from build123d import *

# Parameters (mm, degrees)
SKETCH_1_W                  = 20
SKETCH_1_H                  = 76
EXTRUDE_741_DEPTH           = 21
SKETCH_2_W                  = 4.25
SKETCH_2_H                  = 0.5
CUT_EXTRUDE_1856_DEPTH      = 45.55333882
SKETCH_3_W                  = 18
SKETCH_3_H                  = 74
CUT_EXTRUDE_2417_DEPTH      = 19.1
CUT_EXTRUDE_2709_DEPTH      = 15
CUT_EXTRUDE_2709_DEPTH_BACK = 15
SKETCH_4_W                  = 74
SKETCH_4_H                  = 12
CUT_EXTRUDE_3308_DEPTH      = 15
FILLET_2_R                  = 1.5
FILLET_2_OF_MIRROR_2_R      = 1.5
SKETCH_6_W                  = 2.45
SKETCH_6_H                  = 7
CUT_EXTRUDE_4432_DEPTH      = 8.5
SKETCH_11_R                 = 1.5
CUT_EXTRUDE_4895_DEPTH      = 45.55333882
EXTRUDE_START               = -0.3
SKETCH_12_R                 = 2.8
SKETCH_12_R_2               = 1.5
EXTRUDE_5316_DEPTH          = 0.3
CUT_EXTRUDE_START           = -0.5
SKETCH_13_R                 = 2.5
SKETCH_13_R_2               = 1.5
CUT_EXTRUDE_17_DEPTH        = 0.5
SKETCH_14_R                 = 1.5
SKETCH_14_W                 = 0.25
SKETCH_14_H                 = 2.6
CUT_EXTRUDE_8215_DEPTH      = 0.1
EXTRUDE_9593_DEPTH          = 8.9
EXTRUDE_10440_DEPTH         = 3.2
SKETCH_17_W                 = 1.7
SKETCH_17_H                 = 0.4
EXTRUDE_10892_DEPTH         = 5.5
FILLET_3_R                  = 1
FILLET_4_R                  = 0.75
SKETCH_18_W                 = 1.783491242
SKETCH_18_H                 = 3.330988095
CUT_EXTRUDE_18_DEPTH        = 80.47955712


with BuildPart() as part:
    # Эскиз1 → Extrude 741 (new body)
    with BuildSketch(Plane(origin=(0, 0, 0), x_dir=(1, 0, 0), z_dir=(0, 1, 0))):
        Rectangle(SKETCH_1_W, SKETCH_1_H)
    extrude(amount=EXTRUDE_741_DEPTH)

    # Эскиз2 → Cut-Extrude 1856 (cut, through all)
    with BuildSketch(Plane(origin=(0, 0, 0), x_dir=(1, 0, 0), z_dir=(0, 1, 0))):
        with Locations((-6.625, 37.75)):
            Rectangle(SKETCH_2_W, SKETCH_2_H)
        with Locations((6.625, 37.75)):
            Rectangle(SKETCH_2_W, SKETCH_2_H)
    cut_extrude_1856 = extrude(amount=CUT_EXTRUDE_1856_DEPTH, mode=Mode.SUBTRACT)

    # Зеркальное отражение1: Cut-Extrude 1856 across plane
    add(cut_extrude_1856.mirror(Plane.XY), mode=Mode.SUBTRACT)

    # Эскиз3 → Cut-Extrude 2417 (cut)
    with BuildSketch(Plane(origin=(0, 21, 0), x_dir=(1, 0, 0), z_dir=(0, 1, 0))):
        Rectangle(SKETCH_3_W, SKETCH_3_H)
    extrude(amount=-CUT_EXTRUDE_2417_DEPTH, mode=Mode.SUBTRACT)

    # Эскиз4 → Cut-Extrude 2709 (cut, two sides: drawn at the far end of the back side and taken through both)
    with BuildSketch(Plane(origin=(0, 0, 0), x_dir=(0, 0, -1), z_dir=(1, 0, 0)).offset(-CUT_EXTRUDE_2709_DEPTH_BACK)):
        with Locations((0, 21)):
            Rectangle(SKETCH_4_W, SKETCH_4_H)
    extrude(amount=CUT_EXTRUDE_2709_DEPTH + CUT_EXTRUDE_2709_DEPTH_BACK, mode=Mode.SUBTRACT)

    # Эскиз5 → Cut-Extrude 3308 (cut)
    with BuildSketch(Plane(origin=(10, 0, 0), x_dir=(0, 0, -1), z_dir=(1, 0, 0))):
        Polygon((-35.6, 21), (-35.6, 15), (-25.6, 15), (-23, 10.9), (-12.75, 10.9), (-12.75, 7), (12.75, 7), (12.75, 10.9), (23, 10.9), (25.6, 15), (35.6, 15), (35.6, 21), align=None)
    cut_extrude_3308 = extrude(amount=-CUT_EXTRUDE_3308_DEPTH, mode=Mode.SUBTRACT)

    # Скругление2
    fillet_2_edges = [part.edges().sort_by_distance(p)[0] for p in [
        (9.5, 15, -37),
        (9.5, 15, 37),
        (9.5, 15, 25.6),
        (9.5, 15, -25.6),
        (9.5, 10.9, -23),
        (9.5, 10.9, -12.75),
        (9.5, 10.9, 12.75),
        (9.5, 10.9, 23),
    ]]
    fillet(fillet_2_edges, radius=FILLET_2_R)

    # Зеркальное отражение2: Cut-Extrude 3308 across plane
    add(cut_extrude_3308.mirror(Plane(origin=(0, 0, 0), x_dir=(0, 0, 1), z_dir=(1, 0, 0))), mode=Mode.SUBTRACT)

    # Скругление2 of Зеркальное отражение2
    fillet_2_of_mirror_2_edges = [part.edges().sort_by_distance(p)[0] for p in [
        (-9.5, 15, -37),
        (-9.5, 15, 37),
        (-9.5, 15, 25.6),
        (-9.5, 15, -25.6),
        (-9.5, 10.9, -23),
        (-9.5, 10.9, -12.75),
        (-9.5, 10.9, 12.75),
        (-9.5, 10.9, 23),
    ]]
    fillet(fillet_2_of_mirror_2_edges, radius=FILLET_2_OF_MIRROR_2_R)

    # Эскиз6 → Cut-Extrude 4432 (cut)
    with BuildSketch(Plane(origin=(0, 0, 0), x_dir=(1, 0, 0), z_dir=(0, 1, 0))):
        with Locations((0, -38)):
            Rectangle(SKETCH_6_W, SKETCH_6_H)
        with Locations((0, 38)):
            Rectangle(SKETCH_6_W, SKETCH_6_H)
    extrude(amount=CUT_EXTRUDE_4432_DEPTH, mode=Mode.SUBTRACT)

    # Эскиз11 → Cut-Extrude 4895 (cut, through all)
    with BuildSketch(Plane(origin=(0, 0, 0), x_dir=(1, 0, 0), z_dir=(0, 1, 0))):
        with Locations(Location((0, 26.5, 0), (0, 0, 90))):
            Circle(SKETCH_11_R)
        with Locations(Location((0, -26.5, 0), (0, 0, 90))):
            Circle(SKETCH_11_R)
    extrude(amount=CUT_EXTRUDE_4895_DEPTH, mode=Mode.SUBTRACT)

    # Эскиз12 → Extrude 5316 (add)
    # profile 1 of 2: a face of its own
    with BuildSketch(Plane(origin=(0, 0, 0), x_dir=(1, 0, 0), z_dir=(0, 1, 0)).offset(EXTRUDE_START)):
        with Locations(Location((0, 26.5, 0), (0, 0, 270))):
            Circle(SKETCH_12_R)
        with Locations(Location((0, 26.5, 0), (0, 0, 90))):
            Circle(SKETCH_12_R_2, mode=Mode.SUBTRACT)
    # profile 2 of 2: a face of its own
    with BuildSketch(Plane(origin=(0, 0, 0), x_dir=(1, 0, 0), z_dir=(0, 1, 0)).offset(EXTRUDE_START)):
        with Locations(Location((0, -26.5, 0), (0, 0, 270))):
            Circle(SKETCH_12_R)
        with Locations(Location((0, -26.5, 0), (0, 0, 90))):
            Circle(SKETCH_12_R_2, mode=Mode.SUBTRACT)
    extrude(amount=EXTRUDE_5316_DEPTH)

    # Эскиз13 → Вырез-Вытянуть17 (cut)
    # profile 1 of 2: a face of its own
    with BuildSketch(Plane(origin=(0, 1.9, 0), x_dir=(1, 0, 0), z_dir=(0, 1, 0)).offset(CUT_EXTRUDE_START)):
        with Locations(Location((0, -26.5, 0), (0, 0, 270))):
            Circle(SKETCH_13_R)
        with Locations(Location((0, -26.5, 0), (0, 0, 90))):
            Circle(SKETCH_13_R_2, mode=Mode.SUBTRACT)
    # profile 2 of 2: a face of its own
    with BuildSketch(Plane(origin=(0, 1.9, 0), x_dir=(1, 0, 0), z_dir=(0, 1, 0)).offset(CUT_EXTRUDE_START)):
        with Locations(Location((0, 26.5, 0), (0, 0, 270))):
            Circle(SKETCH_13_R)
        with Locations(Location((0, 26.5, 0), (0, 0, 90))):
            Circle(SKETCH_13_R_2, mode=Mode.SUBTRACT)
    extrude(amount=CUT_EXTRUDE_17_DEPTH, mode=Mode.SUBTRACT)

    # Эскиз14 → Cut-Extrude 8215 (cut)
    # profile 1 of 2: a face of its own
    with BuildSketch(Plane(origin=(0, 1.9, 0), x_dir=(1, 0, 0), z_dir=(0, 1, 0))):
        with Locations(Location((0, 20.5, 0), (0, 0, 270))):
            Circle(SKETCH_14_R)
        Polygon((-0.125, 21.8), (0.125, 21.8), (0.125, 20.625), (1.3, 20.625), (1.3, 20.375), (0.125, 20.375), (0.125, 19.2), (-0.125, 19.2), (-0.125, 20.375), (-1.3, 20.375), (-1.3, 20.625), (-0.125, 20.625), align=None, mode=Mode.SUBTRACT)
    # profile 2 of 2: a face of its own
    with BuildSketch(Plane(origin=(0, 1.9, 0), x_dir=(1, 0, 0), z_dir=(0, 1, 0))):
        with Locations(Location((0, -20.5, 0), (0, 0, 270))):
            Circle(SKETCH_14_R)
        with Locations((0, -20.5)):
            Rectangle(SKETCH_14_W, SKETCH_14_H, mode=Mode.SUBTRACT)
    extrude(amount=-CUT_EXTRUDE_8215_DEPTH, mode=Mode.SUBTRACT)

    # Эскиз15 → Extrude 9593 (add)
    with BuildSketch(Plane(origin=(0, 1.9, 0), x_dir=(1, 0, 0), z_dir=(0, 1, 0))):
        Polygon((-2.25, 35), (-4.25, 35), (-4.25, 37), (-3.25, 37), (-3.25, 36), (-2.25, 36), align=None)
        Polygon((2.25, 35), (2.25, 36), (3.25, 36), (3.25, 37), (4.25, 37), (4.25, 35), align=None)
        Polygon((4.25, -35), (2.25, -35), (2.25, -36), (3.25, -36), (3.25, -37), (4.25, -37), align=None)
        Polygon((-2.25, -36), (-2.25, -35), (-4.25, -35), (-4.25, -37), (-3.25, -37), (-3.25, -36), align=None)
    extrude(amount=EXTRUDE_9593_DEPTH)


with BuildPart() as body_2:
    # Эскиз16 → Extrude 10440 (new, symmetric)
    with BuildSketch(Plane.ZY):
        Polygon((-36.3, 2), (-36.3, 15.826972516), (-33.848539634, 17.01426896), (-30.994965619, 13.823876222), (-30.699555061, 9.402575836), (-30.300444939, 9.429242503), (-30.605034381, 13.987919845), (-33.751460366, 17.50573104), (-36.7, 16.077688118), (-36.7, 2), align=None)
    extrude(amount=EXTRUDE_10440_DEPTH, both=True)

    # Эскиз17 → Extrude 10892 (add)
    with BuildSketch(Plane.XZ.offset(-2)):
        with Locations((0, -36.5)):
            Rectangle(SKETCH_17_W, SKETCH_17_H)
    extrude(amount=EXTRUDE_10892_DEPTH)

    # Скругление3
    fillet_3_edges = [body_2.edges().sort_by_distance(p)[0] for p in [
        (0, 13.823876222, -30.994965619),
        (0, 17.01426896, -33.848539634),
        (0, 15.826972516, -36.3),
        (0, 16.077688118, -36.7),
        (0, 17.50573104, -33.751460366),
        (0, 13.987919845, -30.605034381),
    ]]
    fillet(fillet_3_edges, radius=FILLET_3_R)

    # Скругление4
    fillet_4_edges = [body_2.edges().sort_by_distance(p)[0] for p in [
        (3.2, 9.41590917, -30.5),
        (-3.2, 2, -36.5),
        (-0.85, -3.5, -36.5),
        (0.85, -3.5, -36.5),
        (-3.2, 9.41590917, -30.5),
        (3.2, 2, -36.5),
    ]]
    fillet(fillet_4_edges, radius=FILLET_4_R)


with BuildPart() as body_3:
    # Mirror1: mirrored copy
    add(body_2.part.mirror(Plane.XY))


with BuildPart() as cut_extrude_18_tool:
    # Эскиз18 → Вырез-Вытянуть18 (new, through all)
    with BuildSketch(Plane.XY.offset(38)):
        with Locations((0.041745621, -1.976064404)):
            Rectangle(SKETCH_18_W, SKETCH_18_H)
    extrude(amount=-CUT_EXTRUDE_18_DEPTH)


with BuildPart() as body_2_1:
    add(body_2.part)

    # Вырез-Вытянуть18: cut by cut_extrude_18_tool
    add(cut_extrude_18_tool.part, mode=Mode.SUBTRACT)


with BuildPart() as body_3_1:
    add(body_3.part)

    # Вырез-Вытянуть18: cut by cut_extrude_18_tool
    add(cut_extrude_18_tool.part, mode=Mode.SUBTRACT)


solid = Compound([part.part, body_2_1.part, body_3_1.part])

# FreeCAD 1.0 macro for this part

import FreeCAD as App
import Part
import Sketcher

V = App.Vector
Q = App.Units.Quantity


def edges_at(feature, points):
    """Names of the edges that pass closest to the given points."""
    edges = feature.Shape.Edges
    near = lambda p: min(range(len(edges)), key=lambda i: edges[i].distToShape(Part.Vertex(*p))[0])
    return sorted({f"Edge{near(p) + 1}" for p in points})

doc = App.newDocument("Part")
params = doc.addObject("Spreadsheet::Sheet", "Params")
for row, (alias, value) in enumerate([
    ("sketch1_width", "20 mm"),
    ("sketch1_height", "76 mm"),
    ("pad1_length", "21 mm"),
    ("sketch2_height", "0.5 mm"),
    ("sketch2_width", "4.25 mm"),
    ("sketch3_width", "18 mm"),
    ("sketch3_height", "74 mm"),
    ("pocket2_length", "19.1 mm"),
    ("sketch4_width", "12 mm"),
    ("sketch4_height", "74 mm"),
    ("sketch5_width", "6 mm"),
    ("sketch5_height", "10 mm"),
    ("sketch5_width2", "3.9 mm"),
    ("sketch5_height2", "25.5 mm"),
    ("sketch5_height3", "71.2 mm"),
    ("pocket4_length", "15 mm"),
    ("fillet_radius", "1.5 mm"),
    ("fillet2_radius", "1.5 mm"),
    ("sketch6_height", "7 mm"),
    ("sketch6_width", "2.45 mm"),
    ("pocket5_length", "8.5 mm"),
    ("sketch7_diameter", "3 mm"),
    ("sketch8_diameter", "3 mm"),
    ("sketch8_diameter2", "5.6 mm"),
    ("pad2_length", "0.3 mm"),
    ("sketch9_diameter", "5 mm"),
    ("sketch9_diameter2", "3 mm"),
    ("pocket7_length", "0.5 mm"),
    ("sketch10_diameter", "3 mm"),
    ("sketch10_height", "2.6 mm"),
    ("sketch10_width", "0.25 mm"),
    ("pocket8_length", "0.1 mm"),
    ("sketch11_width", "2 mm"),
    ("pad3_length", "8.9 mm"),
    ("sketch12_height", "0.4 mm"),
    ("sketch12_length", "0.4 mm"),
    ("pad4_length", "6.4 mm"),
    ("sketch13_width", "1.7 mm"),
    ("sketch13_height", "0.4 mm"),
    ("pad5_length", "5.5 mm"),
    ("fillet3_radius", "1 mm"),
    ("fillet4_radius", "0.75 mm"),
    ("pad6_length", "80.479557 mm"),
], start=1):
    params.set(f"A{row}", alias)
    params.set(f"B{row}", "=" + value)
    params.setAlias(f"B{row}", alias)

body = doc.addObject("PartDesign::Body", "Body")

# Sketch on XZ plane
sketch1 = body.newObject("Sketcher::SketchObject", "Sketch")
sketch1.AttachmentSupport = (doc.getObject("XZ_Plane"), [""])
sketch1.MapMode = "FlatFace"
sketch1.addGeometry([
    Part.LineSegment(V(-10, -38, 0), V(-10, 38, 0)),
    Part.LineSegment(V(-10, 38, 0), V(10, 38, 0)),
    Part.LineSegment(V(10, 38, 0), V(10, -38, 0)),
    Part.LineSegment(V(10, -38, 0), V(-10, -38, 0)),
], False)
sketch1.addConstraint([
    Sketcher.Constraint("Coincident", 0, 2, 1, 1),
    Sketcher.Constraint("Coincident", 1, 2, 2, 1),
    Sketcher.Constraint("Coincident", 2, 2, 3, 1),
    Sketcher.Constraint("Coincident", 3, 2, 0, 1),
    Sketcher.Constraint("Vertical", 0),
    Sketcher.Constraint("Horizontal", 1),
    Sketcher.Constraint("Vertical", 2),
    Sketcher.Constraint("Horizontal", 3),
    Sketcher.Constraint("Symmetric", 0, 2, 2, 2, -1, 1),
    Sketcher.Constraint("DistanceX", 1, 1, 1, 2, Q("20 mm")),
    Sketcher.Constraint("DistanceY", 0, 1, 0, 2, Q("76 mm")),
])
sketch1.setExpression("Constraints[9]", "Params.sketch1_width")
sketch1.setExpression("Constraints[10]", "Params.sketch1_height")
pad1 = body.newObject("PartDesign::Pad", "Pad")
pad1.Profile = sketch1
pad1.setExpression("Length", "Params.pad1_length")
pad1.Reversed = True

# Sketch on XZ plane
sketch2 = body.newObject("Sketcher::SketchObject", "Sketch001")
sketch2.AttachmentSupport = (doc.getObject("XZ_Plane"), [""])
sketch2.MapMode = "FlatFace"
sketch2.addGeometry([
    Part.LineSegment(V(-8.75, -38, 0), V(-8.75, -37.5, 0)),  # 0
    Part.LineSegment(V(-8.75, -37.5, 0), V(-4.5, -37.5, 0)),  # 1
    Part.LineSegment(V(-4.5, -37.5, 0), V(-4.5, -38, 0)),  # 2
    Part.LineSegment(V(-4.5, -38, 0), V(-8.75, -38, 0)),  # 3
    Part.LineSegment(V(4.5, -38, 0), V(4.5, -37.5, 0)),  # 4
    Part.LineSegment(V(4.5, -37.5, 0), V(8.75, -37.5, 0)),  # 5
    Part.LineSegment(V(8.75, -37.5, 0), V(8.75, -38, 0)),  # 6
    Part.LineSegment(V(8.75, -38, 0), V(4.5, -38, 0)),  # 7
], False)
sketch2.addConstraint([
    Sketcher.Constraint("Coincident", 0, 2, 1, 1),
    Sketcher.Constraint("Coincident", 1, 2, 2, 1),
    Sketcher.Constraint("Coincident", 2, 2, 3, 1),
    Sketcher.Constraint("Coincident", 3, 2, 0, 1),
    Sketcher.Constraint("Coincident", 4, 2, 5, 1),
    Sketcher.Constraint("Coincident", 5, 2, 6, 1),
    Sketcher.Constraint("Coincident", 6, 2, 7, 1),
    Sketcher.Constraint("Coincident", 7, 2, 4, 1),
    Sketcher.Constraint("Vertical", 0),
    Sketcher.Constraint("Horizontal", 1),
    Sketcher.Constraint("Vertical", 2),
    Sketcher.Constraint("Horizontal", 3),
    Sketcher.Constraint("Vertical", 4),
    Sketcher.Constraint("Horizontal", 5),
    Sketcher.Constraint("Vertical", 6),
    Sketcher.Constraint("Horizontal", 7),
    Sketcher.Constraint("Symmetric", 1, 2, 4, 2, -2),
    Sketcher.Constraint("Symmetric", 3, 2, 6, 2, -2),
    Sketcher.Constraint("DistanceY", 0, 1, 0, 2, Q("0.5 mm")),
    Sketcher.Constraint("DistanceY", 2, 2, -1, 1, Q("38 mm")),
    Sketcher.Constraint("DistanceX", 1, 2, 4, 2, Q("9 mm")),
    Sketcher.Constraint("DistanceX", 1, 1, 1, 2, Q("4.25 mm")),
])
sketch2.setExpression("Constraints[18]", "Params.sketch2_height")
sketch2.setExpression("Constraints[21]", "Params.sketch2_width")
pocket1 = body.newObject("PartDesign::Pocket", "Pocket")
pocket1.Profile = sketch2
pocket1.Type = "ThroughAll"
doc.recompute()

mirrored = body.newObject("PartDesign::Mirrored", "Mirrored")
mirrored.Originals = [pocket1]
mirrored.MirrorPlane = (doc.getObject("XY_Plane"), [""])
body.Tip = mirrored

# Sketch on XZ plane
sketch3 = body.newObject("Sketcher::SketchObject", "Sketch002")
sketch3.AttachmentSupport = (doc.getObject("XZ_Plane"), [""])
sketch3.MapMode = "FlatFace"
sketch3.AttachmentOffset = App.Placement(V(0, 0, -21), App.Rotation())
sketch3.addGeometry([
    Part.LineSegment(V(-9, -37, 0), V(-9, 37, 0)),
    Part.LineSegment(V(-9, 37, 0), V(9, 37, 0)),
    Part.LineSegment(V(9, 37, 0), V(9, -37, 0)),
    Part.LineSegment(V(9, -37, 0), V(-9, -37, 0)),
], False)
sketch3.addConstraint([
    Sketcher.Constraint("Coincident", 0, 2, 1, 1),
    Sketcher.Constraint("Coincident", 1, 2, 2, 1),
    Sketcher.Constraint("Coincident", 2, 2, 3, 1),
    Sketcher.Constraint("Coincident", 3, 2, 0, 1),
    Sketcher.Constraint("Vertical", 0),
    Sketcher.Constraint("Horizontal", 1),
    Sketcher.Constraint("Vertical", 2),
    Sketcher.Constraint("Horizontal", 3),
    Sketcher.Constraint("Symmetric", 0, 2, 2, 2, -1, 1),
    Sketcher.Constraint("DistanceX", 1, 1, 1, 2, Q("18 mm")),
    Sketcher.Constraint("DistanceY", 0, 1, 0, 2, Q("74 mm")),
])
sketch3.setExpression("Constraints[9]", "Params.sketch3_width")
sketch3.setExpression("Constraints[10]", "Params.sketch3_height")
pocket2 = body.newObject("PartDesign::Pocket", "Pocket001")
pocket2.Profile = sketch3
pocket2.setExpression("Length", "Params.pocket2_length")
pocket2.Reversed = True

# Sketch on YZ plane
sketch4 = body.newObject("Sketcher::SketchObject", "Sketch003")
sketch4.AttachmentSupport = (doc.getObject("YZ_Plane"), [""])
sketch4.MapMode = "FlatFace"
sketch4.addGeometry([
    Part.LineSegment(V(27, 37, 0), V(15, 37, 0)),
    Part.LineSegment(V(15, 37, 0), V(15, -37, 0)),
    Part.LineSegment(V(15, -37, 0), V(27, -37, 0)),
    Part.LineSegment(V(27, -37, 0), V(27, 37, 0)),
], False)
sketch4.addConstraint([
    Sketcher.Constraint("Coincident", 0, 2, 1, 1),
    Sketcher.Constraint("Coincident", 1, 2, 2, 1),
    Sketcher.Constraint("Coincident", 2, 2, 3, 1),
    Sketcher.Constraint("Coincident", 3, 2, 0, 1),
    Sketcher.Constraint("Horizontal", 0),
    Sketcher.Constraint("Vertical", 1),
    Sketcher.Constraint("Horizontal", 2),
    Sketcher.Constraint("Vertical", 3),
    Sketcher.Constraint("DistanceX", 0, 2, 0, 1, Q("12 mm")),
    Sketcher.Constraint("DistanceY", 1, 2, 1, 1, Q("74 mm")),
    Sketcher.Constraint("DistanceX", -1, 1, 0, 2, Q("15 mm")),
    Sketcher.Constraint("DistanceY", -1, 1, 0, 2, Q("37 mm")),
])
sketch4.setExpression("Constraints[8]", "Params.sketch4_width")
sketch4.setExpression("Constraints[9]", "Params.sketch4_height")
pocket3 = body.newObject("PartDesign::Pocket", "Pocket002")
pocket3.Profile = sketch4
pocket3.Type = "ThroughAll"
pocket3.Midplane = True

# Sketch on YZ plane
sketch5 = body.newObject("Sketcher::SketchObject", "Sketch004")
sketch5.AttachmentSupport = (doc.getObject("YZ_Plane"), [""])
sketch5.MapMode = "FlatFace"
sketch5.AttachmentOffset = App.Placement(V(0, 0, 10), App.Rotation())
sketch5.addGeometry([
    Part.LineSegment(V(21, 35.6, 0), V(15, 35.6, 0)),  # 0
    Part.LineSegment(V(15, 35.6, 0), V(15, 25.6, 0)),  # 1
    Part.LineSegment(V(15, 25.6, 0), V(10.9, 23, 0)),  # 2
    Part.LineSegment(V(10.9, 23, 0), V(10.9, 12.75, 0)),  # 3
    Part.LineSegment(V(10.9, 12.75, 0), V(7, 12.75, 0)),  # 4
    Part.LineSegment(V(7, 12.75, 0), V(7, -12.75, 0)),  # 5
    Part.LineSegment(V(7, -12.75, 0), V(10.9, -12.75, 0)),  # 6
    Part.LineSegment(V(10.9, -12.75, 0), V(10.9, -23, 0)),  # 7
    Part.LineSegment(V(10.9, -23, 0), V(15, -25.6, 0)),  # 8
    Part.LineSegment(V(15, -25.6, 0), V(15, -35.6, 0)),  # 9
    Part.LineSegment(V(15, -35.6, 0), V(21, -35.6, 0)),  # 10
    Part.LineSegment(V(21, -35.6, 0), V(21, 35.6, 0)),  # 11
], False)
sketch5.addConstraint([
    Sketcher.Constraint("Coincident", 0, 2, 1, 1),
    Sketcher.Constraint("Coincident", 1, 2, 2, 1),
    Sketcher.Constraint("Coincident", 2, 2, 3, 1),
    Sketcher.Constraint("Coincident", 3, 2, 4, 1),
    Sketcher.Constraint("Coincident", 4, 2, 5, 1),
    Sketcher.Constraint("Coincident", 5, 2, 6, 1),
    Sketcher.Constraint("Coincident", 6, 2, 7, 1),
    Sketcher.Constraint("Coincident", 7, 2, 8, 1),
    Sketcher.Constraint("Coincident", 8, 2, 9, 1),
    Sketcher.Constraint("Coincident", 9, 2, 10, 1),
    Sketcher.Constraint("Coincident", 10, 2, 11, 1),
    Sketcher.Constraint("Coincident", 11, 2, 0, 1),
    Sketcher.Constraint("Horizontal", 0),
    Sketcher.Constraint("Vertical", 1),
    Sketcher.Constraint("Vertical", 3),
    Sketcher.Constraint("Horizontal", 4),
    Sketcher.Constraint("Vertical", 5),
    Sketcher.Constraint("Horizontal", 6),
    Sketcher.Constraint("Vertical", 7),
    Sketcher.Constraint("Vertical", 9),
    Sketcher.Constraint("Horizontal", 10),
    Sketcher.Constraint("Vertical", 11),
    Sketcher.Constraint("Symmetric", 3, 2, 6, 2, -1),
    Sketcher.Constraint("Symmetric", 1, 2, 8, 2, -1),
    Sketcher.Constraint("Equal", 3, 7),
    Sketcher.Constraint("Equal", 1, 9),
    Sketcher.Constraint("DistanceX", 0, 2, 0, 1, Q("6 mm")),
    Sketcher.Constraint("DistanceY", 1, 2, 1, 1, Q("10 mm")),
    Sketcher.Constraint("DistanceX", 4, 2, 4, 1, Q("3.9 mm")),
    Sketcher.Constraint("DistanceY", 5, 2, 5, 1, Q("25.5 mm")),
    Sketcher.Constraint("DistanceY", 11, 1, 11, 2, Q("71.2 mm")),
    Sketcher.Constraint("DistanceX", -1, 1, 0, 2, Q("15 mm")),
    Sketcher.Constraint("DistanceY", -1, 1, 2, 2, Q("23 mm")),
    Sketcher.Constraint("DistanceX", -1, 1, 4, 2, Q("7 mm")),
])
sketch5.setExpression("Constraints[26]", "Params.sketch5_width")
sketch5.setExpression("Constraints[27]", "Params.sketch5_height")
sketch5.setExpression("Constraints[28]", "Params.sketch5_width2")
sketch5.setExpression("Constraints[29]", "Params.sketch5_height2")
sketch5.setExpression("Constraints[30]", "Params.sketch5_height3")
pocket4 = body.newObject("PartDesign::Pocket", "Pocket003")
pocket4.Profile = sketch5
pocket4.setExpression("Length", "Params.pocket4_length")
doc.recompute()

fillet = body.newObject("PartDesign::Fillet", "Fillet")
fillet.Base = (pocket4, edges_at(pocket4, [
    (9.5, 15, -37),
    (9.5, 15, 37),
    (9.5, 15, 25.6),
    (9.5, 15, -25.6),
    (9.5, 10.9, -23),
    (9.5, 10.9, -12.75),
    (9.5, 10.9, 12.75),
    (9.5, 10.9, 23),
]))
fillet.setExpression("Radius", "Params.fillet_radius")
doc.recompute()

mirrored2 = body.newObject("PartDesign::Mirrored", "Mirrored001")
mirrored2.Originals = [pocket4]
mirrored2.MirrorPlane = (doc.getObject("YZ_Plane"), [""])
body.Tip = mirrored2
doc.recompute()

fillet2 = body.newObject("PartDesign::Fillet", "Fillet001")
fillet2.Base = (mirrored2, edges_at(mirrored2, [
    (-9.5, 15, -37),
    (-9.5, 15, 37),
    (-9.5, 15, 25.6),
    (-9.5, 15, -25.6),
    (-9.5, 10.9, -23),
    (-9.5, 10.9, -12.75),
    (-9.5, 10.9, 12.75),
    (-9.5, 10.9, 23),
]))
fillet2.setExpression("Radius", "Params.fillet2_radius")

# Sketch on XZ plane
sketch6 = body.newObject("Sketcher::SketchObject", "Sketch005")
sketch6.AttachmentSupport = (doc.getObject("XZ_Plane"), [""])
sketch6.MapMode = "FlatFace"
sketch6.addGeometry([
    Part.LineSegment(V(-1.225, 34.5, 0), V(-1.225, 41.5, 0)),  # 0
    Part.LineSegment(V(-1.225, 41.5, 0), V(1.225, 41.5, 0)),  # 1
    Part.LineSegment(V(1.225, 41.5, 0), V(1.225, 34.5, 0)),  # 2
    Part.LineSegment(V(1.225, 34.5, 0), V(-1.225, 34.5, 0)),  # 3
    Part.LineSegment(V(-1.225, -41.5, 0), V(-1.225, -34.5, 0)),  # 4
    Part.LineSegment(V(-1.225, -34.5, 0), V(1.225, -34.5, 0)),  # 5
    Part.LineSegment(V(1.225, -34.5, 0), V(1.225, -41.5, 0)),  # 6
    Part.LineSegment(V(1.225, -41.5, 0), V(-1.225, -41.5, 0)),  # 7
], False)
sketch6.addConstraint([
    Sketcher.Constraint("Coincident", 0, 2, 1, 1),
    Sketcher.Constraint("Coincident", 1, 2, 2, 1),
    Sketcher.Constraint("Coincident", 2, 2, 3, 1),
    Sketcher.Constraint("Coincident", 3, 2, 0, 1),
    Sketcher.Constraint("Coincident", 4, 2, 5, 1),
    Sketcher.Constraint("Coincident", 5, 2, 6, 1),
    Sketcher.Constraint("Coincident", 6, 2, 7, 1),
    Sketcher.Constraint("Coincident", 7, 2, 4, 1),
    Sketcher.Constraint("Vertical", 0),
    Sketcher.Constraint("Horizontal", 1),
    Sketcher.Constraint("Vertical", 2),
    Sketcher.Constraint("Horizontal", 3),
    Sketcher.Constraint("Vertical", 4),
    Sketcher.Constraint("Horizontal", 5),
    Sketcher.Constraint("Vertical", 6),
    Sketcher.Constraint("Horizontal", 7),
    Sketcher.Constraint("Symmetric", 2, 2, 4, 2, -1, 1),
    Sketcher.Constraint("Symmetric", 0, 2, 6, 2, -1, 1),
    Sketcher.Constraint("Vertical", 3, 2, 4, 2),
    Sketcher.Constraint("DistanceY", 0, 1, 0, 2, Q("7 mm")),
    Sketcher.Constraint("DistanceY", 4, 2, 3, 2, Q("69 mm")),
    Sketcher.Constraint("DistanceX", 1, 1, 1, 2, Q("2.45 mm")),
])
sketch6.setExpression("Constraints[19]", "Params.sketch6_height")
sketch6.setExpression("Constraints[21]", "Params.sketch6_width")
pocket5 = body.newObject("PartDesign::Pocket", "Pocket004")
pocket5.Profile = sketch6
pocket5.setExpression("Length", "Params.pocket5_length")

# Sketch on XZ plane
sketch7 = body.newObject("Sketcher::SketchObject", "Sketch006")
sketch7.AttachmentSupport = (doc.getObject("XZ_Plane"), [""])
sketch7.MapMode = "FlatFace"
sketch7.addGeometry([
    Part.Circle(V(0, -26.5, 0), V(0, 0, 1), 1.5),
    Part.Circle(V(0, 26.5, 0), V(0, 0, 1), 1.5),
], False)
sketch7.addConstraint([
    Sketcher.Constraint("Equal", 0, 1),
    Sketcher.Constraint("Symmetric", 0, 3, 1, 3, -1, 1),
    Sketcher.Constraint("PointOnObject", 0, 3, -2),
    Sketcher.Constraint("Diameter", 0, Q("3 mm")),
    Sketcher.Constraint("DistanceY", 0, 3, 1, 3, Q("53 mm")),
])
sketch7.setExpression("Constraints[3]", "Params.sketch7_diameter")
pocket6 = body.newObject("PartDesign::Pocket", "Pocket005")
pocket6.Profile = sketch7
pocket6.Type = "ThroughAll"

# Sketch on XZ plane
sketch8 = body.newObject("Sketcher::SketchObject", "Sketch007")
sketch8.AttachmentSupport = (doc.getObject("XZ_Plane"), [""])
sketch8.MapMode = "FlatFace"
sketch8.AttachmentOffset = App.Placement(V(0, 0, 0.3), App.Rotation())
sketch8.addGeometry([
    Part.Circle(V(0, -26.5, 0), V(0, 0, 1), 2.8),
    Part.Circle(V(0, -26.5, 0), V(0, 0, 1), 1.5),
    Part.Circle(V(0, 26.5, 0), V(0, 0, 1), 2.8),
    Part.Circle(V(0, 26.5, 0), V(0, 0, 1), 1.5),
], False)
sketch8.addConstraint([
    Sketcher.Constraint("Coincident", 1, 3, 0, 3),
    Sketcher.Constraint("Coincident", 3, 3, 2, 3),
    Sketcher.Constraint("Equal", 0, 2),
    Sketcher.Constraint("Equal", 1, 3),
    Sketcher.Constraint("Symmetric", 0, 3, 2, 3, -1, 1),
    Sketcher.Constraint("PointOnObject", 0, 3, -2),
    Sketcher.Constraint("Diameter", 1, Q("3 mm")),
    Sketcher.Constraint("Diameter", 0, Q("5.6 mm")),
    Sketcher.Constraint("DistanceY", 0, 3, 2, 3, Q("53 mm")),
])
sketch8.setExpression("Constraints[6]", "Params.sketch8_diameter")
sketch8.setExpression("Constraints[7]", "Params.sketch8_diameter2")
pad2 = body.newObject("PartDesign::Pad", "Pad001")
pad2.Profile = sketch8
pad2.setExpression("Length", "Params.pad2_length")
pad2.Reversed = True

# Sketch on XZ plane
sketch9 = body.newObject("Sketcher::SketchObject", "Sketch008")
sketch9.AttachmentSupport = (doc.getObject("XZ_Plane"), [""])
sketch9.MapMode = "FlatFace"
sketch9.AttachmentOffset = App.Placement(V(0, 0, -1.4), App.Rotation())
sketch9.addGeometry([
    Part.Circle(V(0, 26.5, 0), V(0, 0, 1), 2.5),
    Part.Circle(V(0, 26.5, 0), V(0, 0, 1), 1.5),
    Part.Circle(V(0, -26.5, 0), V(0, 0, 1), 2.5),
    Part.Circle(V(0, -26.5, 0), V(0, 0, 1), 1.5),
], False)
sketch9.addConstraint([
    Sketcher.Constraint("Coincident", 1, 3, 0, 3),
    Sketcher.Constraint("Coincident", 3, 3, 2, 3),
    Sketcher.Constraint("Equal", 0, 2),
    Sketcher.Constraint("Equal", 1, 3),
    Sketcher.Constraint("Symmetric", 0, 3, 2, 3, -1, 1),
    Sketcher.Constraint("PointOnObject", 0, 3, -2),
    Sketcher.Constraint("Diameter", 0, Q("5 mm")),
    Sketcher.Constraint("Diameter", 1, Q("3 mm")),
    Sketcher.Constraint("DistanceY", 2, 3, 0, 3, Q("53 mm")),
])
sketch9.setExpression("Constraints[6]", "Params.sketch9_diameter")
sketch9.setExpression("Constraints[7]", "Params.sketch9_diameter2")
pocket7 = body.newObject("PartDesign::Pocket", "Pocket006")
pocket7.Profile = sketch9
pocket7.setExpression("Length", "Params.pocket7_length")

# Sketch on XZ plane
sketch10 = body.newObject("Sketcher::SketchObject", "Sketch009")
sketch10.AttachmentSupport = (doc.getObject("XZ_Plane"), [""])
sketch10.MapMode = "FlatFace"
sketch10.AttachmentOffset = App.Placement(V(0, 0, -1.9), App.Rotation())
sketch10.addGeometry([
    Part.Circle(V(0, -20.5, 0), V(0, 0, 1), 1.5),  # 0
    Part.LineSegment(V(-0.125, -20.625, 0), V(-0.125, -21.8, 0)),  # 1
    Part.LineSegment(V(-0.125, -21.8, 0), V(0.125, -21.8, 0)),  # 2
    Part.LineSegment(V(0.125, -21.8, 0), V(0.125, -20.625, 0)),  # 3
    Part.LineSegment(V(0.125, -20.625, 0), V(1.3, -20.625, 0)),  # 4
    Part.LineSegment(V(1.3, -20.625, 0), V(1.3, -20.375, 0)),  # 5
    Part.LineSegment(V(1.3, -20.375, 0), V(0.125, -20.375, 0)),  # 6
    Part.LineSegment(V(0.125, -20.375, 0), V(0.125, -19.2, 0)),  # 7
    Part.LineSegment(V(0.125, -19.2, 0), V(-0.125, -19.2, 0)),  # 8
    Part.LineSegment(V(-0.125, -19.2, 0), V(-0.125, -20.375, 0)),  # 9
    Part.LineSegment(V(-0.125, -20.375, 0), V(-1.3, -20.375, 0)),  # 10
    Part.LineSegment(V(-1.3, -20.375, 0), V(-1.3, -20.625, 0)),  # 11
    Part.LineSegment(V(-1.3, -20.625, 0), V(-0.125, -20.625, 0)),  # 12
    Part.Circle(V(0, 20.5, 0), V(0, 0, 1), 1.5),  # 13
    Part.LineSegment(V(0.125, 21.8, 0), V(-0.125, 21.8, 0)),  # 14
    Part.LineSegment(V(-0.125, 21.8, 0), V(-0.125, 19.2, 0)),  # 15
    Part.LineSegment(V(-0.125, 19.2, 0), V(0.125, 19.2, 0)),  # 16
    Part.LineSegment(V(0.125, 19.2, 0), V(0.125, 21.8, 0)),  # 17
], False)
sketch10.addConstraint([
    Sketcher.Constraint("Coincident", 1, 2, 2, 1),
    Sketcher.Constraint("Coincident", 2, 2, 3, 1),
    Sketcher.Constraint("Coincident", 3, 2, 4, 1),
    Sketcher.Constraint("Coincident", 4, 2, 5, 1),
    Sketcher.Constraint("Coincident", 5, 2, 6, 1),
    Sketcher.Constraint("Coincident", 6, 2, 7, 1),
    Sketcher.Constraint("Coincident", 7, 2, 8, 1),
    Sketcher.Constraint("Coincident", 8, 2, 9, 1),
    Sketcher.Constraint("Coincident", 9, 2, 10, 1),
    Sketcher.Constraint("Coincident", 10, 2, 11, 1),
    Sketcher.Constraint("Coincident", 11, 2, 12, 1),
    Sketcher.Constraint("Coincident", 12, 2, 1, 1),
    Sketcher.Constraint("Coincident", 14, 2, 15, 1),
    Sketcher.Constraint("Coincident", 15, 2, 16, 1),
    Sketcher.Constraint("Coincident", 16, 2, 17, 1),
    Sketcher.Constraint("Coincident", 17, 2, 14, 1),
    Sketcher.Constraint("Vertical", 1),
    Sketcher.Constraint("Horizontal", 2),
    Sketcher.Constraint("Vertical", 3),
    Sketcher.Constraint("Horizontal", 4),
    Sketcher.Constraint("Vertical", 5),
    Sketcher.Constraint("Horizontal", 6),
    Sketcher.Constraint("Vertical", 7),
    Sketcher.Constraint("Horizontal", 8),
    Sketcher.Constraint("Vertical", 9),
    Sketcher.Constraint("Horizontal", 10),
    Sketcher.Constraint("Vertical", 11),
    Sketcher.Constraint("Horizontal", 12),
    Sketcher.Constraint("Horizontal", 14),
    Sketcher.Constraint("Vertical", 15),
    Sketcher.Constraint("Horizontal", 16),
    Sketcher.Constraint("Vertical", 17),
    Sketcher.Constraint("Equal", 0, 13),
    Sketcher.Constraint("Symmetric", 0, 3, 13, 3, -1, 1),
    Sketcher.Constraint("Symmetric", 2, 2, 14, 2, -1, 1),
    Sketcher.Constraint("Symmetric", 7, 2, 15, 2, -1, 1),
    Sketcher.Constraint("Symmetric", 6, 2, 9, 2, -2),
    Sketcher.Constraint("Symmetric", 4, 2, 11, 2, -2),
    Sketcher.Constraint("PointOnObject", 0, 3, -2),
    Sketcher.Constraint("Vertical", 1, 2, 8, 2),
    Sketcher.Constraint("Vertical", 7, 2, 16, 2),
    Sketcher.Constraint("Equal", 12, 1),
    Sketcher.Constraint("Equal", 16, 5),
    Sketcher.Constraint("Equal", 3, 7),
    Sketcher.Constraint("Diameter", 0, Q("3 mm")),
    Sketcher.Constraint("DistanceY", 15, 2, 15, 1, Q("2.6 mm")),
    Sketcher.Constraint("DistanceY", 0, 3, 13, 3, Q("41 mm")),
    Sketcher.Constraint("DistanceY", 8, 2, 14, 2, Q("41 mm")),
    Sketcher.Constraint("DistanceX", 2, 1, 2, 2, Q("0.25 mm")),
])
sketch10.setExpression("Constraints[44]", "Params.sketch10_diameter")
sketch10.setExpression("Constraints[45]", "Params.sketch10_height")
sketch10.setExpression("Constraints[48]", "Params.sketch10_width")
pocket8 = body.newObject("PartDesign::Pocket", "Pocket007")
pocket8.Profile = sketch10
pocket8.setExpression("Length", "Params.pocket8_length")
pocket8.Reversed = True

# Sketch on XZ plane
sketch11 = body.newObject("Sketcher::SketchObject", "Sketch010")
sketch11.AttachmentSupport = (doc.getObject("XZ_Plane"), [""])
sketch11.MapMode = "FlatFace"
sketch11.AttachmentOffset = App.Placement(V(0, 0, -1.9), App.Rotation())
sketch11.addGeometry([
    Part.LineSegment(V(-4.25, -35, 0), V(-2.25, -35, 0)),  # 0
    Part.LineSegment(V(-2.25, -35, 0), V(-2.25, -36, 0)),  # 1
    Part.LineSegment(V(-2.25, -36, 0), V(-3.25, -36, 0)),  # 2
    Part.LineSegment(V(-3.25, -36, 0), V(-3.25, -37, 0)),  # 3
    Part.LineSegment(V(-3.25, -37, 0), V(-4.25, -37, 0)),  # 4
    Part.LineSegment(V(-4.25, -37, 0), V(-4.25, -35, 0)),  # 5
    Part.LineSegment(V(2.25, -36, 0), V(2.25, -35, 0)),  # 6
    Part.LineSegment(V(2.25, -35, 0), V(4.25, -35, 0)),  # 7
    Part.LineSegment(V(4.25, -35, 0), V(4.25, -37, 0)),  # 8
    Part.LineSegment(V(4.25, -37, 0), V(3.25, -37, 0)),  # 9
    Part.LineSegment(V(3.25, -37, 0), V(3.25, -36, 0)),  # 10
    Part.LineSegment(V(3.25, -36, 0), V(2.25, -36, 0)),  # 11
    Part.LineSegment(V(4.25, 35, 0), V(2.25, 35, 0)),  # 12
    Part.LineSegment(V(2.25, 35, 0), V(2.25, 36, 0)),  # 13
    Part.LineSegment(V(2.25, 36, 0), V(3.25, 36, 0)),  # 14
    Part.LineSegment(V(3.25, 36, 0), V(3.25, 37, 0)),  # 15
    Part.LineSegment(V(3.25, 37, 0), V(4.25, 37, 0)),  # 16
    Part.LineSegment(V(4.25, 37, 0), V(4.25, 35, 0)),  # 17
    Part.LineSegment(V(-2.25, 36, 0), V(-2.25, 35, 0)),  # 18
    Part.LineSegment(V(-2.25, 35, 0), V(-4.25, 35, 0)),  # 19
    Part.LineSegment(V(-4.25, 35, 0), V(-4.25, 37, 0)),  # 20
    Part.LineSegment(V(-4.25, 37, 0), V(-3.25, 37, 0)),  # 21
    Part.LineSegment(V(-3.25, 37, 0), V(-3.25, 36, 0)),  # 22
    Part.LineSegment(V(-3.25, 36, 0), V(-2.25, 36, 0)),  # 23
], False)
sketch11.addConstraint([
    Sketcher.Constraint("Coincident", 0, 2, 1, 1),
    Sketcher.Constraint("Coincident", 1, 2, 2, 1),
    Sketcher.Constraint("Coincident", 2, 2, 3, 1),
    Sketcher.Constraint("Coincident", 3, 2, 4, 1),
    Sketcher.Constraint("Coincident", 4, 2, 5, 1),
    Sketcher.Constraint("Coincident", 5, 2, 0, 1),
    Sketcher.Constraint("Coincident", 6, 2, 7, 1),
    Sketcher.Constraint("Coincident", 7, 2, 8, 1),
    Sketcher.Constraint("Coincident", 8, 2, 9, 1),
    Sketcher.Constraint("Coincident", 9, 2, 10, 1),
    Sketcher.Constraint("Coincident", 10, 2, 11, 1),
    Sketcher.Constraint("Coincident", 11, 2, 6, 1),
    Sketcher.Constraint("Coincident", 12, 2, 13, 1),
    Sketcher.Constraint("Coincident", 13, 2, 14, 1),
    Sketcher.Constraint("Coincident", 14, 2, 15, 1),
    Sketcher.Constraint("Coincident", 15, 2, 16, 1),
    Sketcher.Constraint("Coincident", 16, 2, 17, 1),
    Sketcher.Constraint("Coincident", 17, 2, 12, 1),
    Sketcher.Constraint("Coincident", 18, 2, 19, 1),
    Sketcher.Constraint("Coincident", 19, 2, 20, 1),
    Sketcher.Constraint("Coincident", 20, 2, 21, 1),
    Sketcher.Constraint("Coincident", 21, 2, 22, 1),
    Sketcher.Constraint("Coincident", 22, 2, 23, 1),
    Sketcher.Constraint("Coincident", 23, 2, 18, 1),
    Sketcher.Constraint("Horizontal", 0),
    Sketcher.Constraint("Vertical", 1),
    Sketcher.Constraint("Horizontal", 2),
    Sketcher.Constraint("Vertical", 3),
    Sketcher.Constraint("Horizontal", 4),
    Sketcher.Constraint("Vertical", 5),
    Sketcher.Constraint("Vertical", 6),
    Sketcher.Constraint("Horizontal", 7),
    Sketcher.Constraint("Vertical", 8),
    Sketcher.Constraint("Horizontal", 9),
    Sketcher.Constraint("Vertical", 10),
    Sketcher.Constraint("Horizontal", 11),
    Sketcher.Constraint("Horizontal", 12),
    Sketcher.Constraint("Vertical", 13),
    Sketcher.Constraint("Horizontal", 14),
    Sketcher.Constraint("Vertical", 15),
    Sketcher.Constraint("Horizontal", 16),
    Sketcher.Constraint("Vertical", 17),
    Sketcher.Constraint("Vertical", 18),
    Sketcher.Constraint("Horizontal", 19),
    Sketcher.Constraint("Vertical", 20),
    Sketcher.Constraint("Horizontal", 21),
    Sketcher.Constraint("Vertical", 22),
    Sketcher.Constraint("Horizontal", 23),
    Sketcher.Constraint("Symmetric", 0, 2, 12, 2, -1, 1),
    Sketcher.Constraint("Symmetric", 2, 2, 14, 2, -1, 1),
    Sketcher.Constraint("Symmetric", 4, 2, 16, 2, -1, 1),
    Sketcher.Constraint("Symmetric", 6, 2, 18, 2, -1, 1),
    Sketcher.Constraint("Symmetric", 8, 2, 20, 2, -1, 1),
    Sketcher.Constraint("Symmetric", 10, 2, 22, 2, -1, 1),
    Sketcher.Constraint("Symmetric", 0, 2, 6, 2, -2),
    Sketcher.Constraint("Symmetric", 4, 2, 8, 2, -2),
    Sketcher.Constraint("Symmetric", 2, 2, 10, 2, -2),
    Sketcher.Constraint("Equal", 2, 4),
    Sketcher.Constraint("Equal", 23, 1),
    Sketcher.Constraint("Equal", 1, 3),
    Sketcher.Constraint("DistanceX", 0, 1, 0, 2, Q("2 mm")),
    Sketcher.Constraint("DistanceY", 0, 2, -1, 1, Q("35 mm")),
    Sketcher.Constraint("DistanceX", 0, 2, 6, 2, Q("4.5 mm")),
])
sketch11.setExpression("Constraints[60]", "Params.sketch11_width")
pad3 = body.newObject("PartDesign::Pad", "Pad002")
pad3.Profile = sketch11
pad3.setExpression("Length", "Params.pad3_length")
pad3.Reversed = True
body2 = doc.addObject("PartDesign::Body", "Body001")

# Sketch on YZ plane
sketch12 = body2.newObject("Sketcher::SketchObject", "Sketch011")
sketch12.AttachmentSupport = (doc.getObject("YZ_Plane001"), [""])
sketch12.MapMode = "FlatFace"
sketch12.addGeometry([
    Part.LineSegment(V(2, -36.3, 0), V(15.826973, -36.3, 0)),  # 0
    Part.LineSegment(V(15.826973, -36.3, 0), V(17.014269, -33.84854, 0)),  # 1
    Part.LineSegment(V(17.014269, -33.84854, 0), V(13.823876, -30.994966, 0)),  # 2
    Part.LineSegment(V(13.823876, -30.994966, 0), V(9.402576, -30.699555, 0)),  # 3
    Part.LineSegment(V(9.402576, -30.699555, 0), V(9.429243, -30.300445, 0)),  # 4
    Part.LineSegment(V(9.429243, -30.300445, 0), V(13.98792, -30.605034, 0)),  # 5
    Part.LineSegment(V(13.98792, -30.605034, 0), V(17.505731, -33.75146, 0)),  # 6
    Part.LineSegment(V(17.505731, -33.75146, 0), V(16.077688, -36.7, 0)),  # 7
    Part.LineSegment(V(16.077688, -36.7, 0), V(2, -36.7, 0)),  # 8
    Part.LineSegment(V(2, -36.7, 0), V(2, -36.3, 0)),  # 9
], False)
sketch12.addConstraint([
    Sketcher.Constraint("Coincident", 0, 2, 1, 1),
    Sketcher.Constraint("Coincident", 1, 2, 2, 1),
    Sketcher.Constraint("Coincident", 2, 2, 3, 1),
    Sketcher.Constraint("Coincident", 3, 2, 4, 1),
    Sketcher.Constraint("Coincident", 4, 2, 5, 1),
    Sketcher.Constraint("Coincident", 5, 2, 6, 1),
    Sketcher.Constraint("Coincident", 6, 2, 7, 1),
    Sketcher.Constraint("Coincident", 7, 2, 8, 1),
    Sketcher.Constraint("Coincident", 8, 2, 9, 1),
    Sketcher.Constraint("Coincident", 9, 2, 0, 1),
    Sketcher.Constraint("Horizontal", 0),
    Sketcher.Constraint("Horizontal", 8),
    Sketcher.Constraint("Vertical", 9),
    Sketcher.Constraint("DistanceY", 9, 1, 9, 2, Q("0.4 mm")),
    Sketcher.Constraint("DistanceX", -1, 1, 8, 2, Q("2 mm")),
    Sketcher.Constraint("Distance", 4, Q("0.4 mm")),
    Sketcher.Constraint("DistanceY", 0, 2, -1, 1, Q("36.3 mm")),
    Sketcher.Constraint("DistanceX", 8, 2, 8, 1, Q("14.077688 mm")),
    Sketcher.Constraint("DistanceX", 3, 2, 2, 2, Q("4.4213 mm")),
    Sketcher.Constraint("Distance", 2, Q("4.280361 mm")),
    Sketcher.Constraint("Distance", 3, Q("4.431158 mm")),
    Sketcher.Constraint("Distance", 5, Q("4.568842 mm")),
    Sketcher.Constraint("Distance", 6, Q("4.719639 mm")),
    Sketcher.Constraint("DistanceX", 0, 1, 0, 2, Q("13.826973 mm")),
    Sketcher.Constraint("DistanceX", -1, 1, 1, 2, Q("17.014269 mm")),
    Sketcher.Constraint("DistanceY", 1, 2, -1, 1, Q("33.84854 mm")),
    Sketcher.Constraint("DistanceX", -1, 1, 5, 2, Q("13.98792 mm")),
    Sketcher.Constraint("DistanceX", -1, 1, 6, 2, Q("17.505731 mm")),
    Sketcher.Constraint("DistanceY", 6, 2, -1, 1, Q("33.75146 mm")),
    Sketcher.Constraint("DistanceY", 3, 2, 4, 2, Q("0.39911 mm")),
])
sketch12.setExpression("Constraints[13]", "Params.sketch12_height")
sketch12.setExpression("Constraints[15]", "Params.sketch12_length")
pad4 = body2.newObject("PartDesign::Pad", "Pad003")
pad4.Profile = sketch12
pad4.setExpression("Length", "Params.pad4_length")
pad4.Midplane = True

# Sketch on XZ plane
sketch13 = body2.newObject("Sketcher::SketchObject", "Sketch012")
sketch13.AttachmentSupport = (doc.getObject("XZ_Plane001"), [""])
sketch13.MapMode = "FlatFace"
sketch13.AttachmentOffset = App.Placement(V(0, 0, -2), App.Rotation())
sketch13.addGeometry([
    Part.LineSegment(V(-0.85, -36.3, 0), V(-0.85, -36.7, 0)),
    Part.LineSegment(V(-0.85, -36.7, 0), V(0.85, -36.7, 0)),
    Part.LineSegment(V(0.85, -36.7, 0), V(0.85, -36.3, 0)),
    Part.LineSegment(V(0.85, -36.3, 0), V(-0.85, -36.3, 0)),
], False)
sketch13.addConstraint([
    Sketcher.Constraint("Coincident", 0, 2, 1, 1),
    Sketcher.Constraint("Coincident", 1, 2, 2, 1),
    Sketcher.Constraint("Coincident", 2, 2, 3, 1),
    Sketcher.Constraint("Coincident", 3, 2, 0, 1),
    Sketcher.Constraint("Vertical", 0),
    Sketcher.Constraint("Horizontal", 1),
    Sketcher.Constraint("Vertical", 2),
    Sketcher.Constraint("Horizontal", 3),
    Sketcher.Constraint("DistanceX", 1, 1, 1, 2, Q("1.7 mm")),
    Sketcher.Constraint("DistanceY", 0, 2, 0, 1, Q("0.4 mm")),
    Sketcher.Constraint("DistanceY", 0, 2, -1, 1, Q("36.7 mm")),
    Sketcher.Constraint("DistanceX", 0, 2, -1, 1, Q("0.85 mm")),
])
sketch13.setExpression("Constraints[8]", "Params.sketch13_width")
sketch13.setExpression("Constraints[9]", "Params.sketch13_height")
pad5 = body2.newObject("PartDesign::Pad", "Pad004")
pad5.Profile = sketch13
pad5.setExpression("Length", "Params.pad5_length")
doc.recompute()

fillet3 = body2.newObject("PartDesign::Fillet", "Fillet002")
fillet3.Base = (pad5, edges_at(pad5, [
    (0, 13.824, -30.995),
    (0, 17.014, -33.849),
    (0, 15.827, -36.3),
    (0, 16.078, -36.7),
    (0, 17.506, -33.751),
    (0, 13.988, -30.605),
]))
fillet3.setExpression("Radius", "Params.fillet3_radius")
doc.recompute()

fillet4 = body2.newObject("PartDesign::Fillet", "Fillet003")
fillet4.Base = (fillet3, edges_at(fillet3, [
    (3.2, 9.416, -30.5),
    (-3.2, 2, -36.5),
    (-0.85, -3.5, -36.5),
    (0.85, -3.5, -36.5),
    (-3.2, 9.416, -30.5),
    (3.2, 2, -36.5),
]))
fillet4.setExpression("Radius", "Params.fillet4_radius")
body3 = doc.addObject("PartDesign::Body", "Body002")
doc.recompute()

mirroring = doc.addObject("Part::Mirroring", "Mirroring")
mirroring.Source = body2
mirroring.Base = V(0, 0, 0)
mirroring.Normal = V(0, 0, 1)
body3.BaseFeature = mirroring
doc.recompute()
body4 = doc.addObject("PartDesign::Body", "Body003")

# Sketch on XY plane
sketch14 = body4.newObject("Sketcher::SketchObject", "Sketch013")
sketch14.AttachmentSupport = (doc.getObject("XY_Plane003"), [""])
sketch14.MapMode = "FlatFace"
sketch14.AttachmentOffset = App.Placement(V(0, 0, 38), App.Rotation())
sketch14.addGeometry([
    Part.LineSegment(V(-0.85, -0.31057, 0), V(-0.85, -3.641558, 0)),
    Part.LineSegment(V(-0.85, -3.641558, 0), V(0.933491, -3.641558, 0)),
    Part.LineSegment(V(0.933491, -3.641558, 0), V(0.933491, -0.31057, 0)),
    Part.LineSegment(V(0.933491, -0.31057, 0), V(-0.85, -0.31057, 0)),
], False)
sketch14.addConstraint([
    Sketcher.Constraint("Coincident", 0, 2, 1, 1),
    Sketcher.Constraint("Coincident", 1, 2, 2, 1),
    Sketcher.Constraint("Coincident", 2, 2, 3, 1),
    Sketcher.Constraint("Coincident", 3, 2, 0, 1),
    Sketcher.Constraint("Vertical", 0),
    Sketcher.Constraint("Horizontal", 1),
    Sketcher.Constraint("Vertical", 2),
    Sketcher.Constraint("Horizontal", 3),
    Sketcher.Constraint("DistanceX", 0, 2, -1, 1, Q("0.85 mm")),
    Sketcher.Constraint("DistanceX", 1, 1, 1, 2, Q("1.783491 mm")),
    Sketcher.Constraint("DistanceY", 0, 2, 0, 1, Q("3.330988 mm")),
    Sketcher.Constraint("DistanceY", 0, 2, -1, 1, Q("3.641558 mm")),
])
pad6 = body4.newObject("PartDesign::Pad", "Pad005")
pad6.Profile = sketch14
pad6.setExpression("Length", "Params.pad6_length")
pad6.Reversed = True
doc.recompute()

body5 = doc.addObject("PartDesign::Body", "Body004")
body5.BaseFeature = body4
boolean = body2.newObject("PartDesign::Boolean", "Boolean")
boolean.Type = "Cut"
boolean.addObjects([body5])
doc.recompute()

boolean2 = body3.newObject("PartDesign::Boolean", "Boolean001")
boolean2.Type = "Cut"
boolean2.addObjects([body4])
mirroring.Visibility = False

doc.recompute()
